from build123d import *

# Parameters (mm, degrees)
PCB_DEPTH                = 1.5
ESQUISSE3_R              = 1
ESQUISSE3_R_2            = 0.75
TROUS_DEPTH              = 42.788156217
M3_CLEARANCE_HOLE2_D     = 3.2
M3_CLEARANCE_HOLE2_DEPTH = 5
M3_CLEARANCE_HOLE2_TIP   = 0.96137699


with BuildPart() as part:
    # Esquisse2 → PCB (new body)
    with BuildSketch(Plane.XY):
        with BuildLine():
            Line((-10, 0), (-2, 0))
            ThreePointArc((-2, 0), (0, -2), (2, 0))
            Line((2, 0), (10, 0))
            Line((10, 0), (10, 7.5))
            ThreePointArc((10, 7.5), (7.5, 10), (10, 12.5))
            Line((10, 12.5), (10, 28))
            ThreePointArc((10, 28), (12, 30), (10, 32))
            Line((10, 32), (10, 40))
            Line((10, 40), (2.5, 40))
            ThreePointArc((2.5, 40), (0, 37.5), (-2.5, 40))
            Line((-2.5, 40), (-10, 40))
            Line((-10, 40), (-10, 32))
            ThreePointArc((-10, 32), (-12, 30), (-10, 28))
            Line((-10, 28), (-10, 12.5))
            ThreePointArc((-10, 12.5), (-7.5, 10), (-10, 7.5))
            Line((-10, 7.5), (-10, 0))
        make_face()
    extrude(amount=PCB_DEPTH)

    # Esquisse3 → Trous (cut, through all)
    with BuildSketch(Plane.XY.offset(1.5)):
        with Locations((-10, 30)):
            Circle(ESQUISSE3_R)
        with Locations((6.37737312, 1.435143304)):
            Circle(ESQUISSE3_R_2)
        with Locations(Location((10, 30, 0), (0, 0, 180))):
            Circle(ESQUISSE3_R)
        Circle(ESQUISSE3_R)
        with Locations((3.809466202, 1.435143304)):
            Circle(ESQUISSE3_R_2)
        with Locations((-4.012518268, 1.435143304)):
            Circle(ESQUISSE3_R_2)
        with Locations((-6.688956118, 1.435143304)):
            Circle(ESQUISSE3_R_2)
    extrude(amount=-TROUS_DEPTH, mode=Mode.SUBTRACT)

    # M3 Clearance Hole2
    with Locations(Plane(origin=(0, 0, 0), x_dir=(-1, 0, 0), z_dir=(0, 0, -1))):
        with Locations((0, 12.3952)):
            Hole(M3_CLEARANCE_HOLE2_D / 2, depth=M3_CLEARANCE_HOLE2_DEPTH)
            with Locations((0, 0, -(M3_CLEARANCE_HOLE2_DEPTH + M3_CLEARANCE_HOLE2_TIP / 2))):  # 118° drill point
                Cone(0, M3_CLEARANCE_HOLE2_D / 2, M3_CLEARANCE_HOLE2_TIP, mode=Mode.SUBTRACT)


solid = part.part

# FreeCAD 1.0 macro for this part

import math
import FreeCAD as App
import Part
import Sketcher

V = App.Vector
Q = App.Units.Quantity

doc = App.newDocument("Part")
params = doc.addObject("Spreadsheet::Sheet", "Params")
for row, (alias, value) in enumerate([
    ("sketch1_radius", "2 mm"),
    ("sketch1_radius2", "2.5 mm"),
    ("sketch1_width", "8 mm"),
    ("sketch1_height", "15.5 mm"),
    ("pad1_length", "1.5 mm"),
    ("sketch2_diameter", "2 mm"),
    ("sketch2_diameter2", "1.5 mm"),
    ("sketch3_diameter", "3.2 mm"),
    ("hole_diameter", "3.2 mm"),
    ("hole_depth", "5 mm"),
], start=1):
    params.set(f"A{row}", alias)
    params.set(f"B{row}", "=" + value)
    params.setAlias(f"B{row}", alias)

body = doc.addObject("PartDesign::Body", "Body")

sketch1 = body.newObject("Sketcher::SketchObject", "Sketch")
sketch1.AttachmentSupport = (doc.getObject("XY_Plane"), [""])
sketch1.MapMode = "FlatFace"
sketch1.addGeometry([
    Part.LineSegment(V(-10, 0, 0), V(-2, 0, 0)),
    Part.ArcOfCircle(Part.Circle(V(0, 0, 0), V(0, 0, 1), 2), math.radians(180), math.radians(360)),
    Part.LineSegment(V(2, 0, 0), V(10, 0, 0)),
    Part.LineSegment(V(10, 0, 0), V(10, 7.5, 0)),
    Part.ArcOfCircle(Part.Circle(V(10, 10, 0), V(0, 0, 1), 2.5), math.radians(90), math.radians(270)),
    Part.LineSegment(V(10, 12.5, 0), V(10, 28, 0)),
    Part.ArcOfCircle(Part.Circle(V(10, 30, 0), V(0, 0, 1), 2), math.radians(-90), math.radians(90)),
    Part.LineSegment(V(10, 32, 0), V(10, 40, 0)),
    Part.LineSegment(V(10, 40, 0), V(2.5, 40, 0)),
    Part.ArcOfCircle(Part.Circle(V(0, 40, 0), V(0, 0, 1), 2.5), math.radians(180), math.radians(360)),
    Part.LineSegment(V(-2.5, 40, 0), V(-10, 40, 0)),
    Part.LineSegment(V(-10, 40, 0), V(-10, 32, 0)),
    Part.ArcOfCircle(Part.Circle(V(-10, 30, 0), V(0, 0, 1), 2), math.radians(90), math.radians(270)),
    Part.LineSegment(V(-10, 28, 0), V(-10, 12.5, 0)),
    Part.ArcOfCircle(Part.Circle(V(-10, 10, 0), V(0, 0, 1), 2.5), math.radians(-90), math.radians(90)),
    Part.LineSegment(V(-10, 7.5, 0), V(-10, 0, 0)),
], False)
sketch1.addConstraint([
    Sketcher.Constraint("Coincident", 0, 2, 1, 1),
    Sketcher.Constraint("Coincident", 1, 2, 2, 1),
    Sketcher.Constraint("Coincident", 2, 2, 3, 1),
    Sketcher.Constraint("Coincident", 3, 2, 4, 2),
    Sketcher.Constraint("Coincident", 4, 1, 5, 1),
    Sketcher.Constraint("Coincident", 5, 2, 6, 1),
    Sketcher.Constraint("Coincident", 6, 2, 7, 1),
    Sketcher.Constraint("Coincident", 7, 2, 8, 1),
    Sketcher.Constraint("Coincident", 8, 2, 9, 2),
    Sketcher.Constraint("Coincident", 9, 1, 10, 1),
    Sketcher.Constraint("Coincident", 10, 2, 11, 1),
    Sketcher.Constraint("Coincident", 11, 2, 12, 1),
    Sketcher.Constraint("Coincident", 12, 2, 13, 1),
    Sketcher.Constraint("Coincident", 13, 2, 14, 2),
    Sketcher.Constraint("Coincident", 14, 1, 15, 1),
    Sketcher.Constraint("Coincident", 15, 2, 0, 1),
    Sketcher.Constraint("Horizontal", 0),
    Sketcher.Constraint("Horizontal", 2),
    Sketcher.Constraint("Vertical", 3),
    Sketcher.Constraint("Vertical", 5),
    Sketcher.Constraint("Vertical", 7),
    Sketcher.Constraint("Horizontal", 8),
    Sketcher.Constraint("Horizontal", 10),
    Sketcher.Constraint("Vertical", 11),
    Sketcher.Constraint("Vertical", 13),
    Sketcher.Constraint("Vertical", 15),
    Sketcher.Constraint("Coincident", 1, 3, -1, 1),
    Sketcher.Constraint("Equal", 1, 6),
    Sketcher.Constraint("Equal", 4, 9),
    Sketcher.Constraint("Equal", 6, 12),
    Sketcher.Constraint("Equal", 9, 14),
    Sketcher.Constraint("Symmetric", 2, 2, 15, 2, -1, 1),
    Sketcher.Constraint("Symmetric", 6, 3, 12, 3, -2),
    Sketcher.Constraint("Symmetric", 4, 3, 14, 3, -2),
    Sketcher.Constraint("Symmetric", 8, 2, 9, 1, -2),
    Sketcher.Constraint("PointOnObject", 0, 2, -1),
    Sketcher.Constraint("Horizontal", 9, 3, 7, 2),
    Sketcher.Constraint("Vertical", 4, 3, 6, 3),
    Sketcher.Constraint("Vertical", 6, 3, 2, 2),
    Sketcher.Constraint("Vertical", 3, 2, 4, 1),
    Sketcher.Constraint("Vertical", 5, 2, 6, 2),
    Sketcher.Constraint("Vertical", 14, 3, 10, 2),
    Sketcher.Constraint("Vertical", 11, 2, 12, 2),
    Sketcher.Constraint("Equal", 10, 3),
    Sketcher.Constraint("Equal", 2, 7),
    Sketcher.Constraint("Radius", 1, Q("2 mm")),
    Sketcher.Constraint("Radius", 4, Q("2.5 mm")),
    Sketcher.Constraint("DistanceX", 0, 1, 0, 2, Q("8 mm")),
    Sketcher.Constraint("DistanceY", 5, 1, 5, 2, Q("15.5 mm")),
])
sketch1.setExpression("Constraints[45]", "Params.sketch1_radius")
sketch1.setExpression("Constraints[46]", "Params.sketch1_radius2")
sketch1.setExpression("Constraints[47]", "Params.sketch1_width")
sketch1.setExpression("Constraints[48]", "Params.sketch1_height")
pad1 = body.newObject("PartDesign::Pad", "Pad")
pad1.Profile = sketch1
pad1.setExpression("Length", "Params.pad1_length")

sketch2 = body.newObject("Sketcher::SketchObject", "Sketch001")
sketch2.AttachmentSupport = (doc.getObject("XY_Plane"), [""])
sketch2.MapMode = "FlatFace"
sketch2.AttachmentOffset = App.Placement(V(0, 0, 1.5), App.Rotation())
sketch2.addGeometry([
    Part.Circle(V(-10, 30, 0), V(0, 0, 1), 1),
    Part.Circle(V(6.4, 1.4, 0), V(0, 0, 1), 0.8),
    Part.Circle(V(10, 30, 0), V(0, 0, 1), 1),
    Part.Circle(V(0, 0, 0), V(0, 0, 1), 1),
    Part.Circle(V(3.8, 1.4, 0), V(0, 0, 1), 0.8),
    Part.Circle(V(-4, 1.4, 0), V(0, 0, 1), 0.8),
    Part.Circle(V(-6.7, 1.4, 0), V(0, 0, 1), 0.8),
], False)
sketch2.addConstraint([
    Sketcher.Constraint("Coincident", 3, 3, -1, 1),
    Sketcher.Constraint("Equal", 0, 2),
    Sketcher.Constraint("Equal", 2, 3),
    Sketcher.Constraint("Equal", 1, 4),
    Sketcher.Constraint("Equal", 4, 5),
    Sketcher.Constraint("Equal", 5, 6),
    Sketcher.Constraint("Symmetric", 0, 3, 2, 3, -2),
    Sketcher.Constraint("Horizontal", 1, 3, 4, 3),
    Sketcher.Constraint("Horizontal", 4, 3, 5, 3),
    Sketcher.Constraint("Horizontal", 5, 3, 6, 3),
    Sketcher.Constraint("Diameter", 0, Q("2 mm")),
    Sketcher.Constraint("Diameter", 1, Q("1.5 mm")),
    Sketcher.Constraint("DistanceX", 0, 3, -1, 1, Q("10 mm")),
    Sketcher.Constraint("DistanceY", -1, 1, 0, 3, Q("30 mm")),
    Sketcher.Constraint("DistanceX", 5, 3, -1, 1, Q("4.012518 mm")),
    Sketcher.Constraint("DistanceX", 5, 3, 1, 3, Q("10.389891 mm")),
    Sketcher.Constraint("DistanceX", 6, 3, 1, 3, Q("13.066329 mm")),
    Sketcher.Constraint("DistanceY", -1, 1, 1, 3, Q("1.435143 mm")),
    Sketcher.Constraint("DistanceX", -1, 1, 4, 3, Q("3.809466 mm")),
])
sketch2.setExpression("Constraints[10]", "Params.sketch2_diameter")
sketch2.setExpression("Constraints[11]", "Params.sketch2_diameter2")
pocket1 = body.newObject("PartDesign::Pocket", "Pocket")
pocket1.Profile = sketch2
pocket1.Type = "ThroughAll"

sketch3 = body.newObject("Sketcher::SketchObject", "Sketch002")
sketch3.AttachmentSupport = (doc.getObject("XY_Plane"), [""])
sketch3.MapMode = "FlatFace"
sketch3.addGeometry(Part.Circle(V(0, 12.4, 0), V(0, 0, 1), 1.6), False)
sketch3.addConstraint([
    Sketcher.Constraint("PointOnObject", 0, 3, -2),
    Sketcher.Constraint("Diameter", 0, Q("3.2 mm")),
    Sketcher.Constraint("DistanceY", -1, 1, 0, 3, Q("12.3952 mm")),
])
sketch3.setExpression("Constraints[1]", "Params.sketch3_diameter")
doc.recompute()
hole = body.newObject("PartDesign::Hole", "Hole")
hole.Profile = sketch3
hole.ThreadType = "None"
hole.setExpression("Diameter", "Params.hole_diameter")
hole.DepthType = "Dimension"
hole.setExpression("Depth", "Params.hole_depth")
hole.DrillPoint = "Angled"
hole.DrillPointAngle = 118
hole.Reversed = True

doc.recompute()
